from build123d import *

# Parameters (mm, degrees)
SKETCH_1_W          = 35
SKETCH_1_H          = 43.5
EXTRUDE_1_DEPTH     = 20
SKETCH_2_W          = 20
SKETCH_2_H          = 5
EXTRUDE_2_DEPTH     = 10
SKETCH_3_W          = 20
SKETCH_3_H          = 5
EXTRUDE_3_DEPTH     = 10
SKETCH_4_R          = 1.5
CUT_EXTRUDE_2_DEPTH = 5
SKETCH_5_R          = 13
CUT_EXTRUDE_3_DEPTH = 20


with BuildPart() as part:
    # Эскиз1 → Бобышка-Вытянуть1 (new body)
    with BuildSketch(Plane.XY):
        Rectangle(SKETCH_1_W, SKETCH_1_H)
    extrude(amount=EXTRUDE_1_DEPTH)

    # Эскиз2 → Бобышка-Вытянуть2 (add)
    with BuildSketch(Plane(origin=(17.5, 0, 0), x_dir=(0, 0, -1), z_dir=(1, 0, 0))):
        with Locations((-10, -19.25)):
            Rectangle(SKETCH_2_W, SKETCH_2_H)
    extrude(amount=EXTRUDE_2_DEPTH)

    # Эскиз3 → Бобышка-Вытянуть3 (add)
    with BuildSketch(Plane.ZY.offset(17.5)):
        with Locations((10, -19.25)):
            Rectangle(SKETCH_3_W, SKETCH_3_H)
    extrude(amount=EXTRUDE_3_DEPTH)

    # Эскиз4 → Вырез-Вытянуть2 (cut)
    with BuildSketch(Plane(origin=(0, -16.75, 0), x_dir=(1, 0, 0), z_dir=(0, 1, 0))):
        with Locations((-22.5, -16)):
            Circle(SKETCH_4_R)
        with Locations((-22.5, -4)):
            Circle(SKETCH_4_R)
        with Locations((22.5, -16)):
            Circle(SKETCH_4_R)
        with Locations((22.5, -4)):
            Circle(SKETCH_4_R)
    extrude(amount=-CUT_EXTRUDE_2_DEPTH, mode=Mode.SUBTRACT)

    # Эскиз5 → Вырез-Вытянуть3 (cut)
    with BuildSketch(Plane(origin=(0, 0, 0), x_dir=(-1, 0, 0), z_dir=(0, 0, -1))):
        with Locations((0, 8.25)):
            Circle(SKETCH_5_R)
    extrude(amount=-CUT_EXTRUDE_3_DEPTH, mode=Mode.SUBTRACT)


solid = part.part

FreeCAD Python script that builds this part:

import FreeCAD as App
import Part
import Sketcher
from FreeCAD import Vector


def add_polygon(sketch, points):
    """Adds a closed chain of lines whose ends are joined by coincident constraints."""
    first, n = sketch.GeometryCount, len(points)
    for a, b in zip(points, points[1:] + points[:1]):
        sketch.addGeometry(Part.LineSegment(App.Vector(*a, 0), App.Vector(*b, 0)), False)
    for i in range(n):
        sketch.addConstraint(Sketcher.Constraint("Coincident", first + i, 2, first + (i + 1) % n, 1))

doc = App.newDocument("Part")
body = doc.addObject("PartDesign::Body", "Body")

# Sketch on XY plane
sketch1 = body.newObject("Sketcher::SketchObject", "Sketch")
sketch1.AttachmentSupport = (doc.getObject("XY_Plane"), [""])
sketch1.MapMode = "FlatFace"
add_polygon(sketch1, [(-17.5, 21.75), (-17.5, -21.75), (17.5, -21.75), (17.5, 21.75)])  # lines 0-3
sketch1.addConstraint(Sketcher.Constraint("Vertical", 0))
sketch1.addConstraint(Sketcher.Constraint("Horizontal", 1))
sketch1.addConstraint(Sketcher.Constraint("Vertical", 2))
sketch1.addConstraint(Sketcher.Constraint("Horizontal", 3))
sketch1.addConstraint(Sketcher.Constraint("Symmetric", 0, 2, 2, 2, -1, 1))
sketch1.addConstraint(Sketcher.Constraint("DistanceX", 1, 1, 1, 2, 35.0))
sketch1.addConstraint(Sketcher.Constraint("DistanceY", 0, 2, 0, 1, 43.5))
pad1 = body.newObject("PartDesign::Pad", "Pad")
pad1.Profile = sketch1
pad1.Length = 20

# Sketch on YZ plane
sketch2 = body.newObject("Sketcher::SketchObject", "Sketch001")
sketch2.AttachmentSupport = (doc.getObject("YZ_Plane"), [""])
sketch2.MapMode = "FlatFace"
sketch2.AttachmentOffset = App.Placement(Vector(0, 0, 17.5), App.Rotation())
add_polygon(sketch2, [(-16.75, 20), (-21.75, 20), (-21.75, 0), (-16.75, 0)])  # lines 0-3
sketch2.addConstraint(Sketcher.Constraint("Horizontal", 0))
sketch2.addConstraint(Sketcher.Constraint("Vertical", 1))
sketch2.addConstraint(Sketcher.Constraint("Horizontal", 2))
sketch2.addConstraint(Sketcher.Constraint("Vertical", 3))
sketch2.addConstraint(Sketcher.Constraint("PointOnObject", 1, 2, -1))
sketch2.addConstraint(Sketcher.Constraint("DistanceX", 0, 2, 0, 1, 5.0))
sketch2.addConstraint(Sketcher.Constraint("DistanceY", 1, 2, 1, 1, 20.0))
sketch2.addConstraint(Sketcher.Constraint("DistanceX", 0, 2, -1, 1, 21.75))
pad2 = body.newObject("PartDesign::Pad", "Pad001")
pad2.Profile = sketch2
pad2.Length = 10

# Sketch on YZ plane
sketch3 = body.newObject("Sketcher::SketchObject", "Sketch002")
sketch3.AttachmentSupport = (doc.getObject("YZ_Plane"), [""])
sketch3.MapMode = "FlatFace"
sketch3.AttachmentOffset = App.Placement(Vector(0, 0, -17.5), App.Rotation())
add_polygon(sketch3, [(-16.75, 0), (-21.75, 0), (-21.75, 20), (-16.75, 20)])  # lines 0-3
sketch3.addConstraint(Sketcher.Constraint("Horizontal", 0))
sketch3.addConstraint(Sketcher.Constraint("Vertical", 1))
sketch3.addConstraint(Sketcher.Constraint("Horizontal", 2))
sketch3.addConstraint(Sketcher.Constraint("Vertical", 3))
sketch3.addConstraint(Sketcher.Constraint("PointOnObject", 0, 2, -1))
sketch3.addConstraint(Sketcher.Constraint("DistanceX", 0, 2, 0, 1, 5.0))
sketch3.addConstraint(Sketcher.Constraint("DistanceY", 1, 1, 1, 2, 20.0))
sketch3.addConstraint(Sketcher.Constraint("DistanceX", 0, 2, -1, 1, 21.75))
pad3 = body.newObject("PartDesign::Pad", "Pad002")
pad3.Profile = sketch3
pad3.Length = 10
pad3.Reversed = True

# Sketch on XZ plane
sketch4 = body.newObject("Sketcher::SketchObject", "Sketch003")
sketch4.AttachmentSupport = (doc.getObject("XZ_Plane"), [""])
sketch4.MapMode = "FlatFace"
sketch4.AttachmentOffset = App.Placement(Vector(0, 0, 16.75), App.Rotation())
sketch4.addGeometry(Part.Circle(Vector(-22.5, 16, 0), Vector(0, 0, 1), 1.5), False)
sketch4.addGeometry(Part.Circle(Vector(-22.5, 4, 0), Vector(0, 0, 1), 1.5), False)
sketch4.addGeometry(Part.Circle(Vector(22.5, 16, 0), Vector(0, 0, 1), 1.5), False)
sketch4.addGeometry(Part.Circle(Vector(22.5, 4, 0), Vector(0, 0, 1), 1.5), False)
sketch4.addConstraint(Sketcher.Constraint("Equal", 0, 1))
sketch4.addConstraint(Sketcher.Constraint("Equal", 1, 2))
sketch4.addConstraint(Sketcher.Constraint("Equal", 2, 3))
sketch4.addConstraint(Sketcher.Constraint("Symmetric", 0, 3, 2, 3, -2))
sketch4.addConstraint(Sketcher.Constraint("Symmetric", 1, 3, 3, 3, -2))
sketch4.addConstraint(Sketcher.Constraint("Vertical", 0, 3, 1, 3))
sketch4.addConstraint(Sketcher.Constraint("Diameter", 0, 3.0))
sketch4.addConstraint(Sketcher.Constraint("DistanceY", -1, 1, 0, 3, 16.0))
sketch4.addConstraint(Sketcher.Constraint("DistanceY", -1, 1, 1, 3, 4.0))
sketch4.addConstraint(Sketcher.Constraint("DistanceX", 0, 3, 2, 3, 45.0))
pocket1 = body.newObject("PartDesign::Pocket", "Pocket")
pocket1.Profile = sketch4
pocket1.Length = 5
pocket1.Reversed = True

# Sketch on XY plane
sketch5 = body.newObject("Sketcher::SketchObject", "Sketch004")
sketch5.AttachmentSupport = (doc.getObject("XY_Plane"), [""])
sketch5.MapMode = "FlatFace"
sketch5.addGeometry(Part.Circle(Vector(0, 8.25, 0), Vector(0, 0, 1), 13), False)
sketch5.addConstraint(Sketcher.Constraint("PointOnObject", 0, 3, -2))
sketch5.addConstraint(Sketcher.Constraint("Diameter", 0, 26.0))
sketch5.addConstraint(Sketcher.Constraint("DistanceY", -1, 1, 0, 3, 8.25))
pocket2 = body.newObject("PartDesign::Pocket", "Pocket001")
pocket2.Profile = sketch5
pocket2.Length = 20
pocket2.Reversed = True

doc.recompute()
